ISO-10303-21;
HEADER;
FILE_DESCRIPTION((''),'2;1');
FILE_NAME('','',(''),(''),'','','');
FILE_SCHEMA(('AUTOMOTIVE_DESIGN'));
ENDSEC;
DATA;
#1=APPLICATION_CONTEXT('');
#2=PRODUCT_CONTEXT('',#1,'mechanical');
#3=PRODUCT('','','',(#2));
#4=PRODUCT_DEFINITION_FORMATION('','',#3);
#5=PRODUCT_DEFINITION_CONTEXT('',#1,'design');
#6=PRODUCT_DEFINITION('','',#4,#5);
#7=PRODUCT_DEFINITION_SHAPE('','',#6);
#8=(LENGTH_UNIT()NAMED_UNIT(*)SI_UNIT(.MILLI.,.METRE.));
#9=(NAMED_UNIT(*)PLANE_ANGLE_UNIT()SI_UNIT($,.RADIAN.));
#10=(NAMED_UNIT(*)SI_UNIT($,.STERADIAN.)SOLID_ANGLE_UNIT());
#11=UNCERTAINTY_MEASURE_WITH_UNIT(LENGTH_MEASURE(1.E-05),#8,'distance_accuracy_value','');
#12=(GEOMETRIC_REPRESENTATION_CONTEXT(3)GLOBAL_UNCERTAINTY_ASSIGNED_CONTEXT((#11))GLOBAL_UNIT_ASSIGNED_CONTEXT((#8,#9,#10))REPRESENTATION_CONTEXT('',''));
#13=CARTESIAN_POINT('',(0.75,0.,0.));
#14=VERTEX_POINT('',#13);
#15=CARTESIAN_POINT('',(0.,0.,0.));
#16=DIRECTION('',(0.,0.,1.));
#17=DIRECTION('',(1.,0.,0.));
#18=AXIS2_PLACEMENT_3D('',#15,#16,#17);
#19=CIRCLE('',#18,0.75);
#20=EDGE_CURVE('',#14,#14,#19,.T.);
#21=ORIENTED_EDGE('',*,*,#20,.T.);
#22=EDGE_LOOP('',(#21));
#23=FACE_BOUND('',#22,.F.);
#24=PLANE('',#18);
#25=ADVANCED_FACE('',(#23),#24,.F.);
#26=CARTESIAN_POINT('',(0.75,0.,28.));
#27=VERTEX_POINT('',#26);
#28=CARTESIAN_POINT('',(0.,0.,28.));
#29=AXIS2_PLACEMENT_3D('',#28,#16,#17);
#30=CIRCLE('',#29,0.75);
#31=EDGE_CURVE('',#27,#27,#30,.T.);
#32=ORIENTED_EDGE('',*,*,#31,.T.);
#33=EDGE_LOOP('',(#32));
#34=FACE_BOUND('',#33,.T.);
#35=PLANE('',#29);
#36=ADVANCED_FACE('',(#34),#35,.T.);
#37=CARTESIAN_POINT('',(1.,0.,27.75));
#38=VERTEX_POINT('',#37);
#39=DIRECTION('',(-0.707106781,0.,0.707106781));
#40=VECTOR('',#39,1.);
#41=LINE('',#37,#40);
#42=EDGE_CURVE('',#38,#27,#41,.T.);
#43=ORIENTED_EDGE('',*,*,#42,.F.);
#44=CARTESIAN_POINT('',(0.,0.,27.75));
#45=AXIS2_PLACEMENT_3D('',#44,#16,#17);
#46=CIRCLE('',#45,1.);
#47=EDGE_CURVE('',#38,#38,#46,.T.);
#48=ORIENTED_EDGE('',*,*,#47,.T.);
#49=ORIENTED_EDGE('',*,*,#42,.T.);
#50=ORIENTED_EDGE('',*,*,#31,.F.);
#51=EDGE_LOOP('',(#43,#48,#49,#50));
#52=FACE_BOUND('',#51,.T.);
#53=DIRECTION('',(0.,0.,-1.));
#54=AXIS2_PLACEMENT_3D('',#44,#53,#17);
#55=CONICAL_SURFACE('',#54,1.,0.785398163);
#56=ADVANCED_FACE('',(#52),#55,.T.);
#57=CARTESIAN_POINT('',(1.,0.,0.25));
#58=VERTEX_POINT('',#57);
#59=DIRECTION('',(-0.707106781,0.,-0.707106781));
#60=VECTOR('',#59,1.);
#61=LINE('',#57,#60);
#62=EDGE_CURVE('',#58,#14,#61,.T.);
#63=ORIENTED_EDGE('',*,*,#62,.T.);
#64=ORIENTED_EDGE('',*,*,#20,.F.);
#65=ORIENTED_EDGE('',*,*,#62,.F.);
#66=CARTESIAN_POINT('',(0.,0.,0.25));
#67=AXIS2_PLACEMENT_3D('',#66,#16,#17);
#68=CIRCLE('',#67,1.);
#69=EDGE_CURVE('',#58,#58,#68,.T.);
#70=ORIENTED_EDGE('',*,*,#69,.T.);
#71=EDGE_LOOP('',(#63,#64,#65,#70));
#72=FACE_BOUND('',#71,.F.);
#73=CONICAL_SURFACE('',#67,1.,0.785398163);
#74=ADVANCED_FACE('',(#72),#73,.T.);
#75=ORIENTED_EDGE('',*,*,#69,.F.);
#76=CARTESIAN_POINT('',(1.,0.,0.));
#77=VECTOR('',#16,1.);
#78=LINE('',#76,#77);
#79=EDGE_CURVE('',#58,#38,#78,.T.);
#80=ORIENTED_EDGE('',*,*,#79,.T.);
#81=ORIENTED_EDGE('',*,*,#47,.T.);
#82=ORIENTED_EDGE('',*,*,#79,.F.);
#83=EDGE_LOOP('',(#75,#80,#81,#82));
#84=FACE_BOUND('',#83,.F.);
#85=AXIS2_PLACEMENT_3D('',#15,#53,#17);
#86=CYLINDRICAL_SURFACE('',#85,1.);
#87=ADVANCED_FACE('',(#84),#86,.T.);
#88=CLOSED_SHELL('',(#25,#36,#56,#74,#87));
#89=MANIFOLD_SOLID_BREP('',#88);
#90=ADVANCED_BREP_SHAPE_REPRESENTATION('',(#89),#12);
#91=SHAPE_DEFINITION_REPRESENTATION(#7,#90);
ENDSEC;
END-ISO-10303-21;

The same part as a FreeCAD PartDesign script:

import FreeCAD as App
import Part
import Sketcher

V = App.Vector


def edges_at(feature, points):
    """Names of the edges that pass closest to the given points."""
    edges = feature.Shape.Edges
    near = lambda p: min(range(len(edges)), key=lambda i: edges[i].distToShape(Part.Vertex(*p))[0])
    return sorted({f"Edge{near(p) + 1}" for p in points})

doc = App.newDocument("Part")
body = doc.addObject("PartDesign::Body", "Body")

# Sketch on XY plane
sketch1 = body.newObject("Sketcher::SketchObject", "Sketch")
sketch1.AttachmentSupport = (doc.getObject("XY_Plane"), [""])
sketch1.MapMode = "FlatFace"
sketch1.addGeometry(Part.Circle(V(0, 0, 0), V(0, 0, 1), 1), False)
sketch1.addConstraint([
    Sketcher.Constraint("Coincident", 0, 3, -1, 1),
    Sketcher.Constraint("Diameter", 0, 2.0),
])
pad1 = body.newObject("PartDesign::Pad", "Pad")
pad1.Profile = sketch1
pad1.Length = 28
doc.recompute()

chamfer = body.newObject("PartDesign::Chamfer", "Chamfer")
chamfer.Base = (pad1, edges_at(pad1, [(-1, 0, 28), (-1, 0, 0)]))
chamfer.Size = 0.25

doc.recompute()
